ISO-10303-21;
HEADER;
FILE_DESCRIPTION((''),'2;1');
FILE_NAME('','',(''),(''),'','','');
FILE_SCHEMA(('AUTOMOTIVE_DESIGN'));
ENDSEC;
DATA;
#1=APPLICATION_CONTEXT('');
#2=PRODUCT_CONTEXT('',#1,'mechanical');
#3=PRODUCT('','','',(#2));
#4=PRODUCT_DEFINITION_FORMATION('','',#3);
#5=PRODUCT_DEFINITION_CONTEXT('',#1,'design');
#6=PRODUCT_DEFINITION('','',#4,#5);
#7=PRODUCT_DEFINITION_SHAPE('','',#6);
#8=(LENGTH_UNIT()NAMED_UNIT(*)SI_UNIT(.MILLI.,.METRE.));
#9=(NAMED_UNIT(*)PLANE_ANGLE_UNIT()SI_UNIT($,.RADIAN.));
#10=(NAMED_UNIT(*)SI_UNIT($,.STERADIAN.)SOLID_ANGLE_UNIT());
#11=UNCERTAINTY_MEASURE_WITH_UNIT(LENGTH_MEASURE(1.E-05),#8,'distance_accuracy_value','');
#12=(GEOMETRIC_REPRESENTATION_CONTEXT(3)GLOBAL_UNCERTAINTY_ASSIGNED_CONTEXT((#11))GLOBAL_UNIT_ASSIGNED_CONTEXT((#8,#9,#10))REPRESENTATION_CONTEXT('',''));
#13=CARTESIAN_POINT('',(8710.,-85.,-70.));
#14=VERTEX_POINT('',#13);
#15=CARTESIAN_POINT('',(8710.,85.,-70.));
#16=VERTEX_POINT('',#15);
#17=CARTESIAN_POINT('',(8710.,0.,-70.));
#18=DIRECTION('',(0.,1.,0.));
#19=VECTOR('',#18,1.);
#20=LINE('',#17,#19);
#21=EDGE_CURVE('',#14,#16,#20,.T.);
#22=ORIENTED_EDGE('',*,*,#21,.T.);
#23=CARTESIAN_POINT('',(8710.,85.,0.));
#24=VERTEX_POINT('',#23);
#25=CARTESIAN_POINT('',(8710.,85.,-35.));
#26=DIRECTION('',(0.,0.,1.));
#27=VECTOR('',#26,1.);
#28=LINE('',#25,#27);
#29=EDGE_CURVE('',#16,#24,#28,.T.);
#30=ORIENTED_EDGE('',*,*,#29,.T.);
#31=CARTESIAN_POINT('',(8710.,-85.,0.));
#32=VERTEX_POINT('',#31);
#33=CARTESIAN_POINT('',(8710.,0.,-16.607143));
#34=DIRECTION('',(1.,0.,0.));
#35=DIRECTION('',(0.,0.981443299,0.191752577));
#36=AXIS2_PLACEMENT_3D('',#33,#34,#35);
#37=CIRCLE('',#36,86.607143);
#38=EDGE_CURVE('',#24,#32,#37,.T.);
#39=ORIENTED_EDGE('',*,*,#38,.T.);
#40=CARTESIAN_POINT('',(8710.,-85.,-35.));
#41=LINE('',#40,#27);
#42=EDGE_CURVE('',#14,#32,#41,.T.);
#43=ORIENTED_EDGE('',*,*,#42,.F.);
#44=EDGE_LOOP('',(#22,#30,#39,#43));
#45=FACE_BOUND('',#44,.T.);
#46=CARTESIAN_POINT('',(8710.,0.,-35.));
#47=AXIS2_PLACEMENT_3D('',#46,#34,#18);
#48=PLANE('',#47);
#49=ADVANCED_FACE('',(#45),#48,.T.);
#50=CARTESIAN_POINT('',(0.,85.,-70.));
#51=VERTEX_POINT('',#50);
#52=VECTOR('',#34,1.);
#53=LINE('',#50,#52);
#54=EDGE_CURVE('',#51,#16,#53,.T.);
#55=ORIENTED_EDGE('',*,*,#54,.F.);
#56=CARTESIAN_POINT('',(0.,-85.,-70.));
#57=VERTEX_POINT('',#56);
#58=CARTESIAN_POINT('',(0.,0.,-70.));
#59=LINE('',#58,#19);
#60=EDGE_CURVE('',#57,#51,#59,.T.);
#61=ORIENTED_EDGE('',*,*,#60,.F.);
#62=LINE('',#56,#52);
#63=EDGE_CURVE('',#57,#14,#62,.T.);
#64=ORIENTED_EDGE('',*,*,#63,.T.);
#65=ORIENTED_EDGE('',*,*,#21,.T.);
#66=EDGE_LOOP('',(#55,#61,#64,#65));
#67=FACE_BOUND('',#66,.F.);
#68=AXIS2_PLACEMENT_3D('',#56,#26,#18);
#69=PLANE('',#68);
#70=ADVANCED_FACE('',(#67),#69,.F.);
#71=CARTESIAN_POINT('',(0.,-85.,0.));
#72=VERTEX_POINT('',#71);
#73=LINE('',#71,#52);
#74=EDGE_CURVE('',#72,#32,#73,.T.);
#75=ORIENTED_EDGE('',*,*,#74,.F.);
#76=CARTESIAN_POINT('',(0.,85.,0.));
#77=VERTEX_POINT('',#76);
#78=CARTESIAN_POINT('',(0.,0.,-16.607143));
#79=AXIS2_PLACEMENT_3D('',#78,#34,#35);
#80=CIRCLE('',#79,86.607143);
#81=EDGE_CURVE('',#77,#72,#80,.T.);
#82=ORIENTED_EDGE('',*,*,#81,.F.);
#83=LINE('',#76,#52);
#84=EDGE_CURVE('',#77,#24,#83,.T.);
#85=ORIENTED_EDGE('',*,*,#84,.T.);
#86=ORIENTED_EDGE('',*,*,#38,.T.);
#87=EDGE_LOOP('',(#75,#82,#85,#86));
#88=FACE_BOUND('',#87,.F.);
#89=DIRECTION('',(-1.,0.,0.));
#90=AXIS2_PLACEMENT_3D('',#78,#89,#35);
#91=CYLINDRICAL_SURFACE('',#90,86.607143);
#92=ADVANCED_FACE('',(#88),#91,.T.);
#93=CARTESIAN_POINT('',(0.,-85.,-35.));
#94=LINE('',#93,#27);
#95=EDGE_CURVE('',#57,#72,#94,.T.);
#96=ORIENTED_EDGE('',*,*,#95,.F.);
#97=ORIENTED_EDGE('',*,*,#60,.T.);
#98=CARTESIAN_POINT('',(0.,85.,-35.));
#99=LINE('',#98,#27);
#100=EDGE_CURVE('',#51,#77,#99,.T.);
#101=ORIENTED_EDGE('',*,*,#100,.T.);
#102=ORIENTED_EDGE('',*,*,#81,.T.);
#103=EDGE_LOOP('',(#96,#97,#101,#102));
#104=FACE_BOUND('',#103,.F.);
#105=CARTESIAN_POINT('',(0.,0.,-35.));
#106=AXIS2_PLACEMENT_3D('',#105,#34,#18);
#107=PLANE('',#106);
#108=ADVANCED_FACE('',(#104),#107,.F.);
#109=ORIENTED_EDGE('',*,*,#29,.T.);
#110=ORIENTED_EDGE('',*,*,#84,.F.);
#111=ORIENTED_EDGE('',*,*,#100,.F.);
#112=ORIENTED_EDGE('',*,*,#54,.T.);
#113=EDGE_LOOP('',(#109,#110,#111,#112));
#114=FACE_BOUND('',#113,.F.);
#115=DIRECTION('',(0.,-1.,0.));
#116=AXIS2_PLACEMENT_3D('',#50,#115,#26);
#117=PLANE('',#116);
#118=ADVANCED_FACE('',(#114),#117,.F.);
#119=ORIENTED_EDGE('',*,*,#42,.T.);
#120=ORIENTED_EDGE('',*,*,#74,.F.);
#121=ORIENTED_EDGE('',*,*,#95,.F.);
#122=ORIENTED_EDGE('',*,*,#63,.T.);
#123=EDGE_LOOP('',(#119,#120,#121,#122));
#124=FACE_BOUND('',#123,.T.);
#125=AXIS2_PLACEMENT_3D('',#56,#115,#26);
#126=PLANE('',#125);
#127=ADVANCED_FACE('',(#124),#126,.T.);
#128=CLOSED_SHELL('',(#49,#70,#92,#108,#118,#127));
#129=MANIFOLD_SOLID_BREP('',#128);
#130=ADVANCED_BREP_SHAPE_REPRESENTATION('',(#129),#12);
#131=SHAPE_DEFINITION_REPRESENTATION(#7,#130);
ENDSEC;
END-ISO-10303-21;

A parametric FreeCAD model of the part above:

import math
import FreeCAD as App
import Part
import Sketcher
from FreeCAD import Vector
Q = App.Units.Quantity

doc = App.newDocument("Part")
params = doc.addObject("Spreadsheet::Sheet", "Params")
for row, (alias, value) in enumerate([
    ("sketch1_width", "170 mm"),
    ("sketch1_height", "70 mm"),
    ("pad1_length", "8710 mm"),
], start=1):
    params.set(f"A{row}", alias)
    params.set(f"B{row}", "=" + value)
    params.setAlias(f"B{row}", alias)

body = doc.addObject("PartDesign::Body", "Body")

# Sketch on YZ plane
sketch1 = body.newObject("Sketcher::SketchObject", "Sketch")
sketch1.AttachmentSupport = (doc.getObject("YZ_Plane"), [""])
sketch1.MapMode = "FlatFace"
sketch1.addGeometry(Part.LineSegment(Vector(-85, 0, 0), Vector(-85, -70, 0)), False)
sketch1.addGeometry(Part.LineSegment(Vector(-85, -70, 0), Vector(85, -70, 0)), False)
sketch1.addGeometry(Part.LineSegment(Vector(85, -70, 0), Vector(85, 0, 0)), False)
sketch1.addGeometry(Part.ArcOfCircle(Part.Circle(Vector(0, -17, 0), Vector(0, 0, 1), 87), math.radians(11), math.radians(169)), False)
sketch1.addConstraint(Sketcher.Constraint("Coincident", 0, 2, 1, 1))
sketch1.addConstraint(Sketcher.Constraint("Coincident", 1, 2, 2, 1))
sketch1.addConstraint(Sketcher.Constraint("Coincident", 2, 2, 3, 1))
sketch1.addConstraint(Sketcher.Constraint("Coincident", 3, 2, 0, 1))
sketch1.addConstraint(Sketcher.Constraint("Vertical", 0))
sketch1.addConstraint(Sketcher.Constraint("Horizontal", 1))
sketch1.addConstraint(Sketcher.Constraint("Vertical", 2))
sketch1.addConstraint(Sketcher.Constraint("Symmetric", 2, 2, 3, 2, -1, 1))
sketch1.addConstraint(Sketcher.Constraint("PointOnObject", 3, 3, -2))
sketch1.addConstraint(Sketcher.Constraint("DistanceX", 1, 1, 1, 2, Q("170 mm")))
sketch1.addConstraint(Sketcher.Constraint("DistanceY", 0, 2, 0, 1, Q("70 mm")))
sketch1.addConstraint(Sketcher.Constraint("Radius", 3, Q("86.607143 mm")))
sketch1.setExpression("Constraints[9]", "Params.sketch1_width")
sketch1.setExpression("Constraints[10]", "Params.sketch1_height")
pad1 = body.newObject("PartDesign::Pad", "Pad")
pad1.Profile = sketch1
pad1.setExpression("Length", "Params.pad1_length")

doc.recompute()
